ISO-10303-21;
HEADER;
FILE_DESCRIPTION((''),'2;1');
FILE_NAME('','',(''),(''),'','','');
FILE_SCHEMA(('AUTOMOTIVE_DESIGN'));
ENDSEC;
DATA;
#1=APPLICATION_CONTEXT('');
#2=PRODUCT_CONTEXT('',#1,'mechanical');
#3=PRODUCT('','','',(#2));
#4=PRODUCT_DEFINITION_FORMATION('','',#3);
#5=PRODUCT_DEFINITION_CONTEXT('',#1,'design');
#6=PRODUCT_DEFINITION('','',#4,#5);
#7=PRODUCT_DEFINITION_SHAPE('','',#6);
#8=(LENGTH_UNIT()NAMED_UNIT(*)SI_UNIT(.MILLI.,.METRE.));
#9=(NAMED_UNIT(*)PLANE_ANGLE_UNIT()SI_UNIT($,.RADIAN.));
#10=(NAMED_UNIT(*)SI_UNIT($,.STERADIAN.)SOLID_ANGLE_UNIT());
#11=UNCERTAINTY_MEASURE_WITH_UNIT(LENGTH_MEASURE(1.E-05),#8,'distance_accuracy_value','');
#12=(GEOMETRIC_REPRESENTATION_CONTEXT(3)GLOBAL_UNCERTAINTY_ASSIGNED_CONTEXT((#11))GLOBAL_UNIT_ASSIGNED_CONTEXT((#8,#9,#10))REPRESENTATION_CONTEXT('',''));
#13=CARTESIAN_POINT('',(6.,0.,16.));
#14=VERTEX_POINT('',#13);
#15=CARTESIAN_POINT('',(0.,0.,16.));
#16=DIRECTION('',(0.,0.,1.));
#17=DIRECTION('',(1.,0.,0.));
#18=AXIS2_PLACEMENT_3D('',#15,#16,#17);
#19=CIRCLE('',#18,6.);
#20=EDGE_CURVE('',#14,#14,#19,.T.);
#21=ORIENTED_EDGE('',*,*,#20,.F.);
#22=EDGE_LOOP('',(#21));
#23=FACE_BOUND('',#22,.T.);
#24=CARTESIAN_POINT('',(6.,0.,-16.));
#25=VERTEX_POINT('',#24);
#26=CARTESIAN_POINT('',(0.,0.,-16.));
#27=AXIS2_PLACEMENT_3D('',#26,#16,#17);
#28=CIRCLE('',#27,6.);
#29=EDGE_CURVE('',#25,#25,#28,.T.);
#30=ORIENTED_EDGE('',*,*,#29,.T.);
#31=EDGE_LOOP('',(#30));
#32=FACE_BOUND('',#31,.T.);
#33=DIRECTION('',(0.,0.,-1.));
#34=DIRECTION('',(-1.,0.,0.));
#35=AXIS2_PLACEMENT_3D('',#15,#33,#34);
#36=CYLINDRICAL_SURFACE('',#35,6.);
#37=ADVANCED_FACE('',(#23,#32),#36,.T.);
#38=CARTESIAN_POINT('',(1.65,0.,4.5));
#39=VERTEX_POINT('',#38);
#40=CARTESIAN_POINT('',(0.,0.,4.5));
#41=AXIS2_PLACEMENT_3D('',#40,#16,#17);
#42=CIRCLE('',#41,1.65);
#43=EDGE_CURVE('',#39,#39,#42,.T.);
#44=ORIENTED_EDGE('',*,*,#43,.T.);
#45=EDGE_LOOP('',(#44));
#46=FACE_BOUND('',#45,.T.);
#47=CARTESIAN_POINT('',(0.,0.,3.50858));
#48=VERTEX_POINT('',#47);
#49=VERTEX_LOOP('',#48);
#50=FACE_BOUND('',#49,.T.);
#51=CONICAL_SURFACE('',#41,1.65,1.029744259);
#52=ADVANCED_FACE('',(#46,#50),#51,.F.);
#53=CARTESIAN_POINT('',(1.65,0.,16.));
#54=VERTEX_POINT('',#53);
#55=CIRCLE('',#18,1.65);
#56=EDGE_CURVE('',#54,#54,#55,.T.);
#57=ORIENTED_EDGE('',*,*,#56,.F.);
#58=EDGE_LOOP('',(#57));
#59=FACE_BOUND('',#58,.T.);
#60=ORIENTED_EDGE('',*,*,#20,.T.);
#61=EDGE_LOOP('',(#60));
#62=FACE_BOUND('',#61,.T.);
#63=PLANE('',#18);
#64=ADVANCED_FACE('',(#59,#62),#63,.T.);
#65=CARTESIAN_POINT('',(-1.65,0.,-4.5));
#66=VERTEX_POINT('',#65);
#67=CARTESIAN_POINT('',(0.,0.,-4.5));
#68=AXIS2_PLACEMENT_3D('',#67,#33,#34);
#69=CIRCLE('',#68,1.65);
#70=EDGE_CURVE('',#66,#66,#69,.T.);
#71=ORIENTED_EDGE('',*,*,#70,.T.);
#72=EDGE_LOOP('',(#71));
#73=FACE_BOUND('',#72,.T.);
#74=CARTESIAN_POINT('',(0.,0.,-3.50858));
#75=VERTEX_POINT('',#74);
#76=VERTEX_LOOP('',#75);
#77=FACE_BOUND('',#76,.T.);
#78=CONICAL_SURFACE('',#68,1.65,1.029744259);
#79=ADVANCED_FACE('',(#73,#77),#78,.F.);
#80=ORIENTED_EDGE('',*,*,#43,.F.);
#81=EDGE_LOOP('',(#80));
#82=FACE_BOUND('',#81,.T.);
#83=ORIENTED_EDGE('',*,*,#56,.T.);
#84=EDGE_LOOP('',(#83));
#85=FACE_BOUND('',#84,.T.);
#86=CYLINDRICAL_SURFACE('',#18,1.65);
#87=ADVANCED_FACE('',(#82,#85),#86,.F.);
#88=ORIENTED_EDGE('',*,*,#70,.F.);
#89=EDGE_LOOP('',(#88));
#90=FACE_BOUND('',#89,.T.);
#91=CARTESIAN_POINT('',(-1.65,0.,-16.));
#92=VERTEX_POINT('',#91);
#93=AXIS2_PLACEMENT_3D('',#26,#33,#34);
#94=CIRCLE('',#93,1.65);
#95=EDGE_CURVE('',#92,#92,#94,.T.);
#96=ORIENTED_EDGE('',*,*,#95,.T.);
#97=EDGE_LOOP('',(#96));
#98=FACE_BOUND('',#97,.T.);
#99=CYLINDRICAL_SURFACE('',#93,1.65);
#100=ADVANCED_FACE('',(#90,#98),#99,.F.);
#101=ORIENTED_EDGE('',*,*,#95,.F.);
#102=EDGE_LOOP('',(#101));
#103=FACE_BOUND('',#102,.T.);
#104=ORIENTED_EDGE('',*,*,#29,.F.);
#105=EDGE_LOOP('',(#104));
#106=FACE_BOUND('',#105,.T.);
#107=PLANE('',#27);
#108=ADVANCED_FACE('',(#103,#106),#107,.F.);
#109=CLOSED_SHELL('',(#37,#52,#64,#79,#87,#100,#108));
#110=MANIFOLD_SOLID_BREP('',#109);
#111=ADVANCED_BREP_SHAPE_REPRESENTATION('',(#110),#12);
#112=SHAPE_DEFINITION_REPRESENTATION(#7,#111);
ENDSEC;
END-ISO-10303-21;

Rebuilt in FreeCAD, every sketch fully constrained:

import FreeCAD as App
import Part
import Sketcher
Q = App.Units.Quantity

doc = App.newDocument("Part")
body = doc.addObject("PartDesign::Body", "Body")

sketch1 = doc.addObject("Sketcher::SketchObject", "Sketch")
body.addObject(sketch1)
sketch1.AttachmentSupport = (doc.XY_Plane, [""])
sketch1.MapMode = "FlatFace"
sketch1.addGeometry(Part.Circle(App.Vector(0, 0, 0), App.Vector(0, 0, 1), 6), False)
sketch1.addConstraint([
    Sketcher.Constraint("Coincident", 0, 3, -1, 1),
    Sketcher.Constraint("Diameter", 0, 12.0),
])
pad1 = doc.addObject("PartDesign::Pad", "Pad")
body.addObject(pad1)
pad1.Profile = sketch1
pad1.Length = 32
pad1.Midplane = True

sketch2 = doc.addObject("Sketcher::SketchObject", "Sketch001")
body.addObject(sketch2)
sketch2.AttachmentSupport = (doc.YZ_Plane, [""])
sketch2.MapMode = "FlatFace"
sketch2.addGeometry([
    Part.LineSegment(App.Vector(0, 3.5, 0), App.Vector(0, 16, 0)),
    Part.LineSegment(App.Vector(0, 16, 0), App.Vector(-1.6, 16, 0)),
    Part.LineSegment(App.Vector(-1.6, 16, 0), App.Vector(-1.6, 4.5, 0)),
    Part.LineSegment(App.Vector(-1.6, 4.5, 0), App.Vector(0, 3.5, 0)),
], False)
sketch2.addConstraint([
    Sketcher.Constraint("Coincident", 0, 2, 1, 1),
    Sketcher.Constraint("Coincident", 1, 2, 2, 1),
    Sketcher.Constraint("Coincident", 2, 2, 3, 1),
    Sketcher.Constraint("Coincident", 3, 2, 0, 1),
    Sketcher.Constraint("Vertical", 0),
    Sketcher.Constraint("Horizontal", 1),
    Sketcher.Constraint("Vertical", 2),
    Sketcher.Constraint("PointOnObject", 0, 2, -2),
    Sketcher.Constraint("Angle", 3, Q("-31 deg")),
    Sketcher.Constraint("DistanceY", 2, 2, 2, 1, 11.5),
    Sketcher.Constraint("DistanceY", -1, 1, 0, 2, 16.0),
    Sketcher.Constraint("DistanceX", 1, 2, 1, 1, 1.65),
])
groove = doc.addObject("PartDesign::Groove", "Groove")
body.addObject(groove)
groove.Profile = sketch2
groove.ReferenceAxis = (sketch2, ["V_Axis"])
groove.Angle = 360
doc.recompute()

mirrored = doc.addObject("PartDesign::Mirrored", "Mirrored")
body.addObject(mirrored)
mirrored.Originals = [groove]
mirrored.MirrorPlane = (doc.XY_Plane, [""])
body.Tip = mirrored

doc.recompute()
